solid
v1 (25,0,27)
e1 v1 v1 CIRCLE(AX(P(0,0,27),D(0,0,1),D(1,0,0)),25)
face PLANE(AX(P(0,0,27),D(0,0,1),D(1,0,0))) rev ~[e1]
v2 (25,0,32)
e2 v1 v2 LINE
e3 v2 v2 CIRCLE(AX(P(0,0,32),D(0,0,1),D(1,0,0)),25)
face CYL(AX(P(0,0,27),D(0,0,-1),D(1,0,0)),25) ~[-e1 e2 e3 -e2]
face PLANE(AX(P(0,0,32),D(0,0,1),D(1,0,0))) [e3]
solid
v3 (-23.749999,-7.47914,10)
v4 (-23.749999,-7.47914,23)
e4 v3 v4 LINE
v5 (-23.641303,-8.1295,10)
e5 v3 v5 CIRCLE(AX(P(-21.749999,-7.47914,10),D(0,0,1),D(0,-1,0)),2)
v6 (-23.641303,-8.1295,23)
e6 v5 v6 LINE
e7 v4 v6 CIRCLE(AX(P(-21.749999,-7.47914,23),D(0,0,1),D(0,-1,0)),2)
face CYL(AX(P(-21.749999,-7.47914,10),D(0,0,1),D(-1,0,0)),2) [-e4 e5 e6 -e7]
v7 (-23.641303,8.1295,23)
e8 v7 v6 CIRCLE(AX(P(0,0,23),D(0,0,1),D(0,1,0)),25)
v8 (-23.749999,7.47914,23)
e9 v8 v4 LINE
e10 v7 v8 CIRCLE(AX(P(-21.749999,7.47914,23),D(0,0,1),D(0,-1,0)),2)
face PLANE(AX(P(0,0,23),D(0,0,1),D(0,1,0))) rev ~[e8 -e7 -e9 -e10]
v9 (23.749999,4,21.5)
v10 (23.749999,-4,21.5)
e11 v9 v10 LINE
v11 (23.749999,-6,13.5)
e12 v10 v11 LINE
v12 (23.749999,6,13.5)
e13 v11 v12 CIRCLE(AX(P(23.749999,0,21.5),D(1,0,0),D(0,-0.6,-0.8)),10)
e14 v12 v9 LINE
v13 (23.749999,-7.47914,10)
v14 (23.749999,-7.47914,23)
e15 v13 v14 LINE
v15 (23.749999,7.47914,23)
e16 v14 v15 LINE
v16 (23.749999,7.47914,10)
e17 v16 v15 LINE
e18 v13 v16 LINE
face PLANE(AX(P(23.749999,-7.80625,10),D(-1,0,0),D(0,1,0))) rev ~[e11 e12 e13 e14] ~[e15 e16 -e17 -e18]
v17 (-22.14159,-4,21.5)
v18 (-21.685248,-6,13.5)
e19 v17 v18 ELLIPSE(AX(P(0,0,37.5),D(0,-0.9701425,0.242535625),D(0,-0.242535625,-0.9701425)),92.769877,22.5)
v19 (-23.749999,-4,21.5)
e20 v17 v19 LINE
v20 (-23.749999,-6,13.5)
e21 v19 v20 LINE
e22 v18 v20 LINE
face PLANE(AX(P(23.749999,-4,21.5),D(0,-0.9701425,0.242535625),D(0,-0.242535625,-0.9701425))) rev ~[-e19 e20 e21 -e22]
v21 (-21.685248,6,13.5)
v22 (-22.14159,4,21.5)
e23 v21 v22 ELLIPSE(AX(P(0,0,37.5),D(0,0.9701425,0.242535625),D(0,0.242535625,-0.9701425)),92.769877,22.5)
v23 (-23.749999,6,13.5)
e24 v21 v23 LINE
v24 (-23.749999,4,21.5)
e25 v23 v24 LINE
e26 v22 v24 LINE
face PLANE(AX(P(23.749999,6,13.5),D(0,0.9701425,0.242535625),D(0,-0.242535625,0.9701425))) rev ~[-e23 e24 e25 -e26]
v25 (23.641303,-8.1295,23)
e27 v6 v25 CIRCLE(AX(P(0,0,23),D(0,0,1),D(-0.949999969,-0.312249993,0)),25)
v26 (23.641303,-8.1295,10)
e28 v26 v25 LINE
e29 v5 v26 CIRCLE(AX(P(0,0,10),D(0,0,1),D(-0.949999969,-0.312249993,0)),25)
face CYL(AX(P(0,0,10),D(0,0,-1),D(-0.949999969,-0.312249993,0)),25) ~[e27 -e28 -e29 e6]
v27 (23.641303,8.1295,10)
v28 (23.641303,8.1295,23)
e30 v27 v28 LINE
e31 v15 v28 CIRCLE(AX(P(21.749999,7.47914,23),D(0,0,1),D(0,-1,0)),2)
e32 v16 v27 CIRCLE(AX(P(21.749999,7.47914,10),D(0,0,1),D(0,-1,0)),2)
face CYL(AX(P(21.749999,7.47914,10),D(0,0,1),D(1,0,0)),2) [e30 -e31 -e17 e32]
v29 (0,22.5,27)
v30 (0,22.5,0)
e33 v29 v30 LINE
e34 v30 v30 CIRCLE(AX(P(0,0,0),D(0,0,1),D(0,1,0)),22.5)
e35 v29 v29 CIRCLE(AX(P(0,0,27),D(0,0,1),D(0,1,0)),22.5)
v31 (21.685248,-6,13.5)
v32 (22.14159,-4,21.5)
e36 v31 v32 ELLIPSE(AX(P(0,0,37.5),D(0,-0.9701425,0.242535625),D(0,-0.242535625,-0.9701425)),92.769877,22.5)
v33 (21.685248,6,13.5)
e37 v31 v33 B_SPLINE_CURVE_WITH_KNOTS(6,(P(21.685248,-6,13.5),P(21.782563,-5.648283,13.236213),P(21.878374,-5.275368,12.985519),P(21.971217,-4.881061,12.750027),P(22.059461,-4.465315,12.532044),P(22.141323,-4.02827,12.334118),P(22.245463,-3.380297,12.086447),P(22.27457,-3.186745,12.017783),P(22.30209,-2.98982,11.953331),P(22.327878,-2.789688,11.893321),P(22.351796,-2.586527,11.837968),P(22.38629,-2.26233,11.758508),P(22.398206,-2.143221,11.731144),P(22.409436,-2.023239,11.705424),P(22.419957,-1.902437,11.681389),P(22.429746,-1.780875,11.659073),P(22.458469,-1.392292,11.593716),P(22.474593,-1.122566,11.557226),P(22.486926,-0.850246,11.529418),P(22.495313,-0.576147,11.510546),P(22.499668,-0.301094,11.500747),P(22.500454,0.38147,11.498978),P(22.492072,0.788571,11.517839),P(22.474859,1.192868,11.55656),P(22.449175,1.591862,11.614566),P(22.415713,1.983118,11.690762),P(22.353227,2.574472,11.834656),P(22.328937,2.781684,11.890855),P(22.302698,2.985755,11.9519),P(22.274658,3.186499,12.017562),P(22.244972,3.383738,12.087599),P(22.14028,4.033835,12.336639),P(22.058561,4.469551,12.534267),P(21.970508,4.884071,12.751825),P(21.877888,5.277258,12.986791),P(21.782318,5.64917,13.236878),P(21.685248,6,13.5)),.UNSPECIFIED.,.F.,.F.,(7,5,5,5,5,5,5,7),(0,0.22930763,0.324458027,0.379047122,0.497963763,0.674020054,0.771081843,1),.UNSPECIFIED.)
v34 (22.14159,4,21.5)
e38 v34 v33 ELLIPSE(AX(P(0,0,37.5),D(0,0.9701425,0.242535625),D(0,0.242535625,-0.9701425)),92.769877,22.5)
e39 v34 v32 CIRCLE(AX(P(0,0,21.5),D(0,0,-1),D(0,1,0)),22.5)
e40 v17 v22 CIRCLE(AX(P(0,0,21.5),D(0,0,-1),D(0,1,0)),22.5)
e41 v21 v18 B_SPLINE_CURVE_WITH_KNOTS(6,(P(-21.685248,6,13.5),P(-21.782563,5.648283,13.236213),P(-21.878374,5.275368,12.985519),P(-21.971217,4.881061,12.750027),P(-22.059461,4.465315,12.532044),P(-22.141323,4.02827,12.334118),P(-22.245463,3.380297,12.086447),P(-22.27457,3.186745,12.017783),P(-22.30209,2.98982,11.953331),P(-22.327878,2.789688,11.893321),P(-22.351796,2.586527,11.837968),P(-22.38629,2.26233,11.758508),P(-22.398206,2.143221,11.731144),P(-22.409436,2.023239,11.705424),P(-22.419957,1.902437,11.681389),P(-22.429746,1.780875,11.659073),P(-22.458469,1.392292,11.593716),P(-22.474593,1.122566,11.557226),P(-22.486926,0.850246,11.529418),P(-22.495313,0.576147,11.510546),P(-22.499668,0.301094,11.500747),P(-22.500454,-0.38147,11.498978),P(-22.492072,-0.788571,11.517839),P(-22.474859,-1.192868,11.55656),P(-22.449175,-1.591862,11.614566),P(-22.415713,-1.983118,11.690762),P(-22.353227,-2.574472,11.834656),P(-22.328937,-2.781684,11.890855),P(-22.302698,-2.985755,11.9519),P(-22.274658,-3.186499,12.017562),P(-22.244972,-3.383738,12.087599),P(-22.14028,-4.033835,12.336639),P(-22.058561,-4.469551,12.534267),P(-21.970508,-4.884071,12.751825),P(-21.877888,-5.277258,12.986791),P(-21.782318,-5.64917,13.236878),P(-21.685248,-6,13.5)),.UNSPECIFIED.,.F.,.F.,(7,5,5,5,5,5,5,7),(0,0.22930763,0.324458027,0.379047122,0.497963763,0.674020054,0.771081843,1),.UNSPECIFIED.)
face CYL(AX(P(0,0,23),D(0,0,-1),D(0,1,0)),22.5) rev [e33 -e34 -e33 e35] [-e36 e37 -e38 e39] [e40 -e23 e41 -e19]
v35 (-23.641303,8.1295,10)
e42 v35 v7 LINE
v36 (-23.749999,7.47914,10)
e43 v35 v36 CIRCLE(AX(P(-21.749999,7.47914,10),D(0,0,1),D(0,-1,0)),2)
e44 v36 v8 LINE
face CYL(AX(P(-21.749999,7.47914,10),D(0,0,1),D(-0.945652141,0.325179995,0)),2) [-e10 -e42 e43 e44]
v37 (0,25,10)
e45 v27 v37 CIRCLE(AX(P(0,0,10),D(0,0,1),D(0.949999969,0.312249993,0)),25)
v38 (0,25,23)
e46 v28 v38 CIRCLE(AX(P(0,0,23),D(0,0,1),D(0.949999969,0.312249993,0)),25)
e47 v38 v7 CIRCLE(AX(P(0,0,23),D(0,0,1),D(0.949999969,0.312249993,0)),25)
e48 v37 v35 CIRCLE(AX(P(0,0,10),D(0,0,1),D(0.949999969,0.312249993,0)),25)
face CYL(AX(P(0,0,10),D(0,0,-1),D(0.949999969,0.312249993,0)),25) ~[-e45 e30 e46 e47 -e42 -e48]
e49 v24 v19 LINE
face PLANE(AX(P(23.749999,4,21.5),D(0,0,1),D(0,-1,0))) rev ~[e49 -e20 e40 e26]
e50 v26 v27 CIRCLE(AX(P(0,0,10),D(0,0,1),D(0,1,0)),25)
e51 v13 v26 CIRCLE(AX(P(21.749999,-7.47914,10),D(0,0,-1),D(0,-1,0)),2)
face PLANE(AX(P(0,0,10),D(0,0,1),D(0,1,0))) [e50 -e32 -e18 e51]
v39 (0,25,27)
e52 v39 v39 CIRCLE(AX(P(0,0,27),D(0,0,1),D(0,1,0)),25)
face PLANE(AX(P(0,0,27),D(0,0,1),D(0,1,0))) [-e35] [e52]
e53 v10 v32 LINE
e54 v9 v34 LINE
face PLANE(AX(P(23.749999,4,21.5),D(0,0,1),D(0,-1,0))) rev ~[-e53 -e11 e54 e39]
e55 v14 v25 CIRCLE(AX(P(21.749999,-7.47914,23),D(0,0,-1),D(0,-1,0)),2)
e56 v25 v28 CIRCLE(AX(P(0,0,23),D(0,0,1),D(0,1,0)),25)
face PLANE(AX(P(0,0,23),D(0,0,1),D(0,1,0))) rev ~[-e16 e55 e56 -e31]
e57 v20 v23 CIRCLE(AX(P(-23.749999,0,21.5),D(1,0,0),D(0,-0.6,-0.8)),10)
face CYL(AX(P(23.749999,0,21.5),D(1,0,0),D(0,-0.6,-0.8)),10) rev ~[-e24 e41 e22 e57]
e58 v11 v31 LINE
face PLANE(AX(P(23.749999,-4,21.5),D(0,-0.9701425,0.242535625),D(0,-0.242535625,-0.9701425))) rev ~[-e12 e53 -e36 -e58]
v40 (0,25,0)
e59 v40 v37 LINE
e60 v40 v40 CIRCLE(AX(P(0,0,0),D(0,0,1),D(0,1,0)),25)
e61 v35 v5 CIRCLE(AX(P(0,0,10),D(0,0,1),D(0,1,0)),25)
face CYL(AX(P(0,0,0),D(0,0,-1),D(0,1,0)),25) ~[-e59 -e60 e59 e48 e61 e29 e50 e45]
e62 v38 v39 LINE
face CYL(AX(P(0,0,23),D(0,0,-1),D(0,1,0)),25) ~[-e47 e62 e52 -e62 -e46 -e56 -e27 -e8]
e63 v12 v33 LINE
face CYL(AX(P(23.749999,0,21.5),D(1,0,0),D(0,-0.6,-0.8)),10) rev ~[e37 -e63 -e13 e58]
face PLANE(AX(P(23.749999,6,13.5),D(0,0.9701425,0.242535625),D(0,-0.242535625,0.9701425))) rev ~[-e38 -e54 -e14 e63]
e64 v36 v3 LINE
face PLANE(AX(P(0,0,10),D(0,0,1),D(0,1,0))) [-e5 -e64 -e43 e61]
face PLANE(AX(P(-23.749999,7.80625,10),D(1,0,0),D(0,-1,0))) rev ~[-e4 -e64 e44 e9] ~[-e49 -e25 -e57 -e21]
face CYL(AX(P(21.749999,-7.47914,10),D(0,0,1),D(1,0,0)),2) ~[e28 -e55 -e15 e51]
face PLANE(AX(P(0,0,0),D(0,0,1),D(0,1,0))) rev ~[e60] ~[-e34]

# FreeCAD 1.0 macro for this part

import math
import FreeCAD as App
import Part
import Sketcher
from FreeCAD import Vector
Q = App.Units.Quantity


def edges_at(feature, points):
    """Names of the edges that pass closest to the given points."""
    edges = feature.Shape.Edges
    near = lambda p: min(range(len(edges)), key=lambda i: edges[i].distToShape(Part.Vertex(*p))[0])
    return sorted({f"Edge{near(p) + 1}" for p in points})

doc = App.newDocument("Part")
body = doc.addObject("PartDesign::Body", "Body")

# Sketch on YZ plane
sketch1 = body.newObject("Sketcher::SketchObject", "Sketch")
sketch1.AttachmentSupport = (doc.getObject("YZ_Plane"), [""])
sketch1.MapMode = "FlatFace"
sketch1.AttachmentOffset = App.Placement(Vector(0, 0, 23.749999), App.Rotation())
sketch1.addGeometry(Part.LineSegment(Vector(4, 22, 0), Vector(-4, 22, 0)), False)
sketch1.addGeometry(Part.LineSegment(Vector(-4, 22, 0), Vector(-6, 14, 0)), False)
sketch1.addGeometry(Part.ArcOfCircle(Part.Circle(Vector(0, 22, 0), Vector(0, 0, 1), 10), math.radians(-127), math.radians(-53)), False)
sketch1.addGeometry(Part.LineSegment(Vector(6, 14, 0), Vector(4, 22, 0)), False)
sketch1.addConstraint(Sketcher.Constraint("Coincident", 0, 2, 1, 1))
sketch1.addConstraint(Sketcher.Constraint("Coincident", 1, 2, 2, 1))
sketch1.addConstraint(Sketcher.Constraint("Coincident", 2, 2, 3, 1))
sketch1.addConstraint(Sketcher.Constraint("Coincident", 3, 2, 0, 1))
sketch1.addConstraint(Sketcher.Constraint("Horizontal", 0))
sketch1.addConstraint(Sketcher.Constraint("Symmetric", 1, 2, 2, 2, -2))
sketch1.addConstraint(Sketcher.Constraint("Horizontal", 2, 3, 0, 2))
sketch1.addConstraint(Sketcher.Constraint("Equal", 1, 3))
sketch1.addConstraint(Sketcher.Constraint("Radius", 2, Q("10 mm")))
sketch1.addConstraint(Sketcher.Constraint("DistanceX", 0, 2, 0, 1, Q("8 mm")))
sketch1.addConstraint(Sketcher.Constraint("DistanceX", 1, 2, -1, 1, Q("6 mm")))
sketch1.addConstraint(Sketcher.Constraint("DistanceY", -1, 1, 2, 3, Q("21.5 mm")))
pad1 = body.newObject("PartDesign::Pad", "Pad")
pad1.Profile = sketch1
pad1.Length = 47.5
pad1.Reversed = True
body2 = doc.addObject("PartDesign::Body", "Body001")

# Sketch on XY plane
sketch2 = body2.newObject("Sketcher::SketchObject", "Sketch001")
sketch2.AttachmentSupport = (doc.getObject("XY_Plane001"), [""])
sketch2.MapMode = "FlatFace"
sketch2.AttachmentOffset = App.Placement(Vector(0, 0, 23), App.Rotation())
sketch2.addGeometry(Part.Circle(Vector(0, 0, 0), Vector(0, 0, 1), 25), False)
sketch2.addGeometry(Part.Circle(Vector(0, 0, 0), Vector(0, 0, 1), 22), False)
sketch2.addConstraint(Sketcher.Constraint("Coincident", 0, 3, -1, 1))
sketch2.addConstraint(Sketcher.Constraint("Coincident", 1, 3, -1, 1))
sketch2.addConstraint(Sketcher.Constraint("Diameter", 0, Q("50 mm")))
sketch2.addConstraint(Sketcher.Constraint("Diameter", 1, Q("45 mm")))
pad2 = body2.newObject("PartDesign::Pad", "Pad001")
pad2.Profile = sketch2
pad2.Length = 4
body3 = doc.addObject("PartDesign::Body", "Body002")
body3.AllowCompound = True

# Sketch on XY plane
sketch3 = body3.newObject("Sketcher::SketchObject", "Sketch002")
sketch3.AttachmentSupport = (doc.getObject("XY_Plane002"), [""])
sketch3.MapMode = "FlatFace"
sketch3.addGeometry(Part.Circle(Vector(0, 0, 0), Vector(0, 0, 1), 25), False)
sketch3.addGeometry(Part.Circle(Vector(0, 0, 0), Vector(0, 0, 1), 22), False)
sketch3.addConstraint(Sketcher.Constraint("Coincident", 0, 3, -1, 1))
sketch3.addConstraint(Sketcher.Constraint("Coincident", 1, 3, -1, 1))
sketch3.addConstraint(Sketcher.Constraint("Diameter", 0, Q("50 mm")))
sketch3.addConstraint(Sketcher.Constraint("Diameter", 1, Q("45 mm")))
pad3 = body3.newObject("PartDesign::Pad", "Pad002")
pad3.Profile = sketch3
pad3.Length = 10
doc.recompute()

boolean = body3.newObject("PartDesign::Boolean", "Boolean")
boolean.Type = "Fuse"
boolean.addObjects([body2])
body4 = doc.addObject("PartDesign::Body", "Body003")

# Sketch on XY plane
sketch4 = body4.newObject("Sketcher::SketchObject", "Sketch003")
sketch4.AttachmentSupport = (doc.getObject("XY_Plane003"), [""])
sketch4.MapMode = "FlatFace"
sketch4.AttachmentOffset = App.Placement(Vector(0, 0, 10), App.Rotation())
sketch4.addGeometry(Part.ArcOfCircle(Part.Circle(Vector(0, 0, 0), Vector(0, 0, 1), 25), math.radians(18), math.radians(162)), False)
sketch4.addGeometry(Part.LineSegment(Vector(-24, 8, 0), Vector(-24, -8, 0)), False)
sketch4.addGeometry(Part.ArcOfCircle(Part.Circle(Vector(0, 0, 0), Vector(0, 0, 1), 25), math.radians(-162), math.radians(-18)), False)
sketch4.addGeometry(Part.LineSegment(Vector(24, -8, 0), Vector(24, 8, 0)), False)
sketch4.addGeometry(Part.Circle(Vector(0, 0, 0), Vector(0, 0, 1), 22), False)
sketch4.addConstraint(Sketcher.Constraint("Coincident", 0, 2, 1, 1))
sketch4.addConstraint(Sketcher.Constraint("Coincident", 1, 2, 2, 1))
sketch4.addConstraint(Sketcher.Constraint("Coincident", 2, 2, 3, 1))
sketch4.addConstraint(Sketcher.Constraint("Coincident", 3, 2, 0, 1))
sketch4.addConstraint(Sketcher.Constraint("Vertical", 1))
sketch4.addConstraint(Sketcher.Constraint("Vertical", 3))
sketch4.addConstraint(Sketcher.Constraint("Coincident", 0, 3, -1, 1))
sketch4.addConstraint(Sketcher.Constraint("Coincident", 2, 3, -1, 1))
sketch4.addConstraint(Sketcher.Constraint("Coincident", 4, 3, -1, 1))
sketch4.addConstraint(Sketcher.Constraint("Equal", 0, 2))
sketch4.addConstraint(Sketcher.Constraint("Horizontal", 1, 2, 2, 2))
sketch4.addConstraint(Sketcher.Constraint("Diameter", 4, Q("45 mm")))
sketch4.addConstraint(Sketcher.Constraint("Radius", 0, Q("25 mm")))
sketch4.addConstraint(Sketcher.Constraint("DistanceX", 1, 2, 2, 2, Q("47.499998 mm")))
pad4 = body4.newObject("PartDesign::Pad", "Pad003")
pad4.Profile = sketch4
pad4.Length = 13
doc.recompute()

fillet = body4.newObject("PartDesign::Fillet", "Fillet")
fillet.Base = (pad4, edges_at(pad4, [(23.75, -7.806, 16.5)]))
fillet.Radius = 2
doc.recompute()

fillet2 = body4.newObject("PartDesign::Fillet", "Fillet001")
fillet2.Base = (fillet, edges_at(fillet, [(23.75, 7.806, 16.5)]))
fillet2.Radius = 2
doc.recompute()

fillet3 = body4.newObject("PartDesign::Fillet", "Fillet002")
fillet3.Base = (fillet2, edges_at(fillet2, [(-23.75, 7.806, 16.5)]))
fillet3.Radius = 2
doc.recompute()

fillet4 = body4.newObject("PartDesign::Fillet", "Fillet003")
fillet4.Base = (fillet3, edges_at(fillet3, [(-23.75, -7.806, 16.5)]))
fillet4.Radius = 2
doc.recompute()

boolean2 = body4.newObject("PartDesign::Boolean", "Boolean001")
boolean2.Type = "Fuse"
boolean2.addObjects([body3])
doc.recompute()

boolean3 = body4.newObject("PartDesign::Boolean", "Boolean002")
boolean3.Type = "Cut"
boolean3.addObjects([body])
body5 = doc.addObject("PartDesign::Body", "Body004")

# Sketch on XY plane
sketch5 = body5.newObject("Sketcher::SketchObject", "Sketch004")
sketch5.AttachmentSupport = (doc.getObject("XY_Plane004"), [""])
sketch5.MapMode = "FlatFace"
sketch5.AttachmentOffset = App.Placement(Vector(0, 0, 27), App.Rotation())
sketch5.addGeometry(Part.Circle(Vector(0, 0, 0), Vector(0, 0, 1), 25), False)
sketch5.addConstraint(Sketcher.Constraint("Coincident", 0, 3, -1, 1))
sketch5.addConstraint(Sketcher.Constraint("Diameter", 0, Q("50 mm")))
pad5 = body5.newObject("PartDesign::Pad", "Pad004")
pad5.Profile = sketch5
pad5.Length = 5

doc.recompute()
